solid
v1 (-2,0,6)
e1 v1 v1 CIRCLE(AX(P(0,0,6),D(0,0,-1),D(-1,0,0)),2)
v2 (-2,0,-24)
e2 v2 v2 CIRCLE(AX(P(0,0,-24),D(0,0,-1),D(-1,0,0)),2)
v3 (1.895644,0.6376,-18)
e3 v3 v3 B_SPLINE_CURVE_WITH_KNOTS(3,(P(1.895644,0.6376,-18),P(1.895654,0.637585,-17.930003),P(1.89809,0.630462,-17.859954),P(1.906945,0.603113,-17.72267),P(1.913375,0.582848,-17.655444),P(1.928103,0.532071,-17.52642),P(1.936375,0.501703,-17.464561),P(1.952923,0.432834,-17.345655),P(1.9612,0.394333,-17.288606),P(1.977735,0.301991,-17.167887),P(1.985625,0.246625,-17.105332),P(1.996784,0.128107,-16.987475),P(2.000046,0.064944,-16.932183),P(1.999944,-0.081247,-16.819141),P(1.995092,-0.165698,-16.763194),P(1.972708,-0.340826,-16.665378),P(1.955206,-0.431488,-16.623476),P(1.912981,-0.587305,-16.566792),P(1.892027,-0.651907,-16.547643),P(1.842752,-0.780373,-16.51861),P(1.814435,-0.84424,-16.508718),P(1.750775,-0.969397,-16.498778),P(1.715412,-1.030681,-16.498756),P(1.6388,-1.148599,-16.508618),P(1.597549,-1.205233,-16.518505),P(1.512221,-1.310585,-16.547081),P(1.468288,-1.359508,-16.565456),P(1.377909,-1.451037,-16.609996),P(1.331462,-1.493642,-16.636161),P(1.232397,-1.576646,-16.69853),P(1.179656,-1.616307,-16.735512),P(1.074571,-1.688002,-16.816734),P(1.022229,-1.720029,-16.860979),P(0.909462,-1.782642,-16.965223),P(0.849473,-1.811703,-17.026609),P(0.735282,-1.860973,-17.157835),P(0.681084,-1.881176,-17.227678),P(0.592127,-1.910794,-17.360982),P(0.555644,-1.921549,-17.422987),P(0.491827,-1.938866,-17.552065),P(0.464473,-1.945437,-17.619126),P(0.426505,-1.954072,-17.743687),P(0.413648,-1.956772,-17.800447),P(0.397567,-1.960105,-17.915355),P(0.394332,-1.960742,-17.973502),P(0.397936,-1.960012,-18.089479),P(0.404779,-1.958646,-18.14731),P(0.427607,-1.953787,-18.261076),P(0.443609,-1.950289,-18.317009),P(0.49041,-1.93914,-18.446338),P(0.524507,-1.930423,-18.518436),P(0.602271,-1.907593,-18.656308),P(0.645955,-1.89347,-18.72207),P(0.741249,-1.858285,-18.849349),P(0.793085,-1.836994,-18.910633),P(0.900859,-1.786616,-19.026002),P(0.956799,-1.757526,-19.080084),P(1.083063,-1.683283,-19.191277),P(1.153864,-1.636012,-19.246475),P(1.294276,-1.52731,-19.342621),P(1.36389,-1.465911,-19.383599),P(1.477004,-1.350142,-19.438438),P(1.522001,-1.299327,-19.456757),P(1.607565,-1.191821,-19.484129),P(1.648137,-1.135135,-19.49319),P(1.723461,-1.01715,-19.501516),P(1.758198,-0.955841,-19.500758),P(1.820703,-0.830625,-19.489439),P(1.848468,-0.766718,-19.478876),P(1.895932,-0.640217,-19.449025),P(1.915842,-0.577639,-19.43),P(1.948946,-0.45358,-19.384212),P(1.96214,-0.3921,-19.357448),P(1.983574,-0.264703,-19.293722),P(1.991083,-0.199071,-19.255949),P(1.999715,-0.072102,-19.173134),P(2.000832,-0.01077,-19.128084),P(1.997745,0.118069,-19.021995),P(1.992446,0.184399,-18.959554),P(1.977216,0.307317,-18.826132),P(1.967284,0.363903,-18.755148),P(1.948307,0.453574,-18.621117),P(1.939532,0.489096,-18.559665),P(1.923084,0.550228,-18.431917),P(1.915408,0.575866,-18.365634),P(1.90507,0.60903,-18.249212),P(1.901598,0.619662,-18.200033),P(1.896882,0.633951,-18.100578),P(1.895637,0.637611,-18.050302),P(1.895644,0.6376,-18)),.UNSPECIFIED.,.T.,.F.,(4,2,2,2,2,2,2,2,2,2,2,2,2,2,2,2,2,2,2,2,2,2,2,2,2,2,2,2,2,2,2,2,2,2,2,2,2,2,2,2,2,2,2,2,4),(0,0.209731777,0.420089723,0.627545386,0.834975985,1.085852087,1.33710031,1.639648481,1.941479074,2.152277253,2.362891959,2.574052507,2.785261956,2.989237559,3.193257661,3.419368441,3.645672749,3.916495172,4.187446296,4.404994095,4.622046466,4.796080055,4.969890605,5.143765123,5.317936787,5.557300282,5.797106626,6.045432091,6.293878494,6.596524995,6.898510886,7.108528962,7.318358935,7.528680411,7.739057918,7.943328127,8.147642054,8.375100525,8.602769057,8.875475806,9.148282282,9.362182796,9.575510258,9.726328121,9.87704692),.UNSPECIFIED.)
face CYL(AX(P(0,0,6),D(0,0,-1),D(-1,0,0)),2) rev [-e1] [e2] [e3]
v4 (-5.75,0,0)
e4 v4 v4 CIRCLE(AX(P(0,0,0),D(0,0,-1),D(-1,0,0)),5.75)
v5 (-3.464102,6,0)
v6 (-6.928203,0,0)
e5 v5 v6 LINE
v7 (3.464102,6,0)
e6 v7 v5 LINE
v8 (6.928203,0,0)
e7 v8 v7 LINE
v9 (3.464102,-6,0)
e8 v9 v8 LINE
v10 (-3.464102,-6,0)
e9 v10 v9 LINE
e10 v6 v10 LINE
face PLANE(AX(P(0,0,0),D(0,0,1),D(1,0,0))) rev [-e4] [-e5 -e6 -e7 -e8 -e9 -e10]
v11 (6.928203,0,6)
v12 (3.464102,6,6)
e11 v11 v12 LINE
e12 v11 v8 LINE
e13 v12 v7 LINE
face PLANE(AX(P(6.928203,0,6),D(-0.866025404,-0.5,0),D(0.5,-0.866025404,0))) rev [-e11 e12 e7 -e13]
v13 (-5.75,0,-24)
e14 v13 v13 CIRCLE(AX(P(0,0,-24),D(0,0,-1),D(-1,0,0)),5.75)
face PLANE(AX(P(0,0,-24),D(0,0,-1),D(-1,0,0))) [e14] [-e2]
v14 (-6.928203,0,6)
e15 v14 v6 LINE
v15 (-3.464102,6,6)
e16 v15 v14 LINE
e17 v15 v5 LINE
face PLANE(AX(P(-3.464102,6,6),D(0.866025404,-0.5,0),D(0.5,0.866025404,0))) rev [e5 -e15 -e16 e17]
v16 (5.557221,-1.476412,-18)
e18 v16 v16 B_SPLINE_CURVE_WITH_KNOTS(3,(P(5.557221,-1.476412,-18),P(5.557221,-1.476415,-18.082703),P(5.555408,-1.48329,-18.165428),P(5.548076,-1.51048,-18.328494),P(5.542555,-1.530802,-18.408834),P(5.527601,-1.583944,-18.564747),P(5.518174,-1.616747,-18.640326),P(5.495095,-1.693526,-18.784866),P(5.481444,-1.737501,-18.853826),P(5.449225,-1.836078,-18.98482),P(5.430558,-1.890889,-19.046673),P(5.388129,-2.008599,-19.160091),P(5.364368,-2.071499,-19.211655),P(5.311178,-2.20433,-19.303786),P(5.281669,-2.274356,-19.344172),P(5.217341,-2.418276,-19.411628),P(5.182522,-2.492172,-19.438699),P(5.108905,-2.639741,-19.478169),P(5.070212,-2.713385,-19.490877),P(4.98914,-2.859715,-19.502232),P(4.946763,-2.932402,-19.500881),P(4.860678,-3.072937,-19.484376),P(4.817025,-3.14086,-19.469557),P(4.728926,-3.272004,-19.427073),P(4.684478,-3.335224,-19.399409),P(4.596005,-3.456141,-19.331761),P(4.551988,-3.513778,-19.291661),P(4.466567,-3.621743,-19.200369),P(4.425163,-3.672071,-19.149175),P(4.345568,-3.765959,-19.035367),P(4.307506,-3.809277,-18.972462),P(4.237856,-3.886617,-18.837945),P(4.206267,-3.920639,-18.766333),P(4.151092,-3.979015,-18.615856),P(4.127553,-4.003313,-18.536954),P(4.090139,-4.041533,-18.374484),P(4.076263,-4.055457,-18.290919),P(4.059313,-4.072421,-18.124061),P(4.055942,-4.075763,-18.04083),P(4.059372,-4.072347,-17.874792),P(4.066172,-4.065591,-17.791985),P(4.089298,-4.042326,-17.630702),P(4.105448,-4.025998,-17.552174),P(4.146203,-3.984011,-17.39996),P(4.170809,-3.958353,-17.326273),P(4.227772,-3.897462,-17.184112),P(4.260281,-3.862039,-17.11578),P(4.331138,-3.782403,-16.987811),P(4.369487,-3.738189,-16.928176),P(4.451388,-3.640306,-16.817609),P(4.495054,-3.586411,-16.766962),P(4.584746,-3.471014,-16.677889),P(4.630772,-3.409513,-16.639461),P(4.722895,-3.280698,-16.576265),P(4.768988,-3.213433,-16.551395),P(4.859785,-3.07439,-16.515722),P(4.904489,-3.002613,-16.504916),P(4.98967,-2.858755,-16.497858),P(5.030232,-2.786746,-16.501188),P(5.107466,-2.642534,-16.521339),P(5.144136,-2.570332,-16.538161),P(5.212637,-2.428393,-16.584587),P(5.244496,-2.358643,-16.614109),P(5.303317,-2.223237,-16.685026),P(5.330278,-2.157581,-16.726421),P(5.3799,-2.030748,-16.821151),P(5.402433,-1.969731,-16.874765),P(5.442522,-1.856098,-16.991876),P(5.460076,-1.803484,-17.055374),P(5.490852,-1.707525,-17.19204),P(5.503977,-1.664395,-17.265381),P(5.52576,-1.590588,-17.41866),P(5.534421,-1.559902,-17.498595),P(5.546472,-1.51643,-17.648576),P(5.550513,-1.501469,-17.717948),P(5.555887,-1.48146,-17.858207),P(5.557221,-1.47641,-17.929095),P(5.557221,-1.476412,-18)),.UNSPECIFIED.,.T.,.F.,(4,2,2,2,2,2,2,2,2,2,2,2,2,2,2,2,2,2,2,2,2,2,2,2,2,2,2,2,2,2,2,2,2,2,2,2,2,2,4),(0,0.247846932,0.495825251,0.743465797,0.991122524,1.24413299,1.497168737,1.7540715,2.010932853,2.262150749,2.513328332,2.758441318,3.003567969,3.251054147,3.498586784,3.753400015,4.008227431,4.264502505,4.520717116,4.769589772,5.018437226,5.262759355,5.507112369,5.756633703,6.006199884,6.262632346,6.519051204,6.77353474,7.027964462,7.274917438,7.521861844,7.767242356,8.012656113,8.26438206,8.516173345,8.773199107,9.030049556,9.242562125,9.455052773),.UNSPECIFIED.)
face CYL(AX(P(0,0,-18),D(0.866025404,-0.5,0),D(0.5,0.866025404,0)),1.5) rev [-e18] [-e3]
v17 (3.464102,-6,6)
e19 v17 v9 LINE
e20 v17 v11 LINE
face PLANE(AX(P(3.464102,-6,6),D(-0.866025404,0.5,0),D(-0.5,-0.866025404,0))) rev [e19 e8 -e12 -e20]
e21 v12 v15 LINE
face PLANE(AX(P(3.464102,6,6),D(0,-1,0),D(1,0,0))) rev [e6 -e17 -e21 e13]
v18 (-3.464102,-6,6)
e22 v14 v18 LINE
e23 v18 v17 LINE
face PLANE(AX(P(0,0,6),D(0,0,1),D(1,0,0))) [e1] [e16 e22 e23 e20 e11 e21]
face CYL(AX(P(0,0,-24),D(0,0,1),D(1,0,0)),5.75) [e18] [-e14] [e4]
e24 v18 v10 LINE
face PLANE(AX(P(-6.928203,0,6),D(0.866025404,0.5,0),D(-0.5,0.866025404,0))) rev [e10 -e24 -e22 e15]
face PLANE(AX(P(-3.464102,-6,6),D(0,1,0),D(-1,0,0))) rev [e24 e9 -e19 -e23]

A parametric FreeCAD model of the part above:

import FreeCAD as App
import Part
import Sketcher

V = App.Vector
Q = App.Units.Quantity

doc = App.newDocument("Part")
body = doc.addObject("PartDesign::Body", "Body")

# Sketch on XY plane
sketch1 = doc.addObject("Sketcher::SketchObject", "Sketch")
body.addObject(sketch1)
sketch1.AttachmentSupport = (doc.XY_Plane, [""])
sketch1.MapMode = "FlatFace"
sketch1.addGeometry([
    Part.LineSegment(V(-7, 0, 0), V(-3, -6, 0)),  # 0
    Part.LineSegment(V(-3, -6, 0), V(3, -6, 0)),  # 1
    Part.LineSegment(V(3, -6, 0), V(7, 0, 0)),  # 2
    Part.LineSegment(V(7, 0, 0), V(3, 6, 0)),  # 3
    Part.LineSegment(V(3, 6, 0), V(-3, 6, 0)),  # 4
    Part.LineSegment(V(-3, 6, 0), V(-7, 0, 0)),  # 5
], False)
sketch1.addConstraint([
    Sketcher.Constraint("Coincident", 0, 2, 1, 1),
    Sketcher.Constraint("Coincident", 1, 2, 2, 1),
    Sketcher.Constraint("Coincident", 2, 2, 3, 1),
    Sketcher.Constraint("Coincident", 3, 2, 4, 1),
    Sketcher.Constraint("Coincident", 4, 2, 5, 1),
    Sketcher.Constraint("Coincident", 5, 2, 0, 1),
    Sketcher.Constraint("Horizontal", 1),
    Sketcher.Constraint("Horizontal", 4),
    Sketcher.Constraint("Symmetric", 0, 2, 3, 2, -1, 1),
    Sketcher.Constraint("Symmetric", 2, 2, 5, 2, -1, 1),
    Sketcher.Constraint("PointOnObject", 2, 2, -1),
    Sketcher.Constraint("Parallel", 2, 5),
    Sketcher.Constraint("Vertical", 1, 2, 3, 2),
    Sketcher.Constraint("Angle", 0, Q("-60 deg")),
    Sketcher.Constraint("DistanceY", 0, 2, -1, 1, 6.0),
    Sketcher.Constraint("DistanceX", 0, 2, -1, 1, 3.464102),
])
pad1 = doc.addObject("PartDesign::Pad", "Pad")
body.addObject(pad1)
pad1.Profile = sketch1
pad1.Length = 6

# Sketch on XY plane
sketch2 = doc.addObject("Sketcher::SketchObject", "Sketch001")
body.addObject(sketch2)
sketch2.AttachmentSupport = (doc.XY_Plane, [""])
sketch2.MapMode = "FlatFace"
sketch2.addGeometry(Part.Circle(V(0, 0, 0), V(0, 0, 1), 6), False)
sketch2.addConstraint([
    Sketcher.Constraint("Coincident", 0, 3, -1, 1),
    Sketcher.Constraint("Diameter", 0, 11.5),
])
pad2 = doc.addObject("PartDesign::Pad", "Pad001")
body.addObject(pad2)
pad2.Profile = sketch2
pad2.Length = 24
pad2.Reversed = True

# Sketch on XY plane
sketch3 = doc.addObject("Sketcher::SketchObject", "Sketch002")
body.addObject(sketch3)
sketch3.AttachmentSupport = (doc.XY_Plane, [""])
sketch3.MapMode = "FlatFace"
sketch3.AttachmentOffset = App.Placement(V(0, 0, -24), App.Rotation())
sketch3.addGeometry(Part.Circle(V(0, 0, 0), V(0, 0, 1), 2), False)
sketch3.addConstraint([
    Sketcher.Constraint("Coincident", 0, 3, -1, 1),
    Sketcher.Constraint("Diameter", 0, 4.0),
])
pocket1 = doc.addObject("PartDesign::Pocket", "Pocket")
body.addObject(pocket1)
pocket1.Profile = sketch3
pocket1.Type = "ThroughAll"
pocket1.Reversed = True

# Sketch on an angled plane
sketch4 = doc.addObject("Sketcher::SketchObject", "Sketch003")
body.addObject(sketch4)
sketch4.Placement = App.Placement(V(5.196152, -3, 0), App.Rotation(V(0.5, 0.866025404, 0), V(0, 0, 1), V(0.866025404, -0.5, 0), "ZXY"))
sketch4.addGeometry(Part.Circle(V(0, -18, 0), V(0, 0, 1), 1.5), False)
sketch4.addConstraint([
    Sketcher.Constraint("PointOnObject", 0, 3, -2),
    Sketcher.Constraint("Diameter", 0, 3.0),
    Sketcher.Constraint("DistanceY", 0, 3, -1, 1, 18.0),
])
pocket2 = doc.addObject("PartDesign::Pocket", "Pocket001")
body.addObject(pocket2)
pocket2.Profile = sketch4
pocket2.Length = 6

doc.recompute()
